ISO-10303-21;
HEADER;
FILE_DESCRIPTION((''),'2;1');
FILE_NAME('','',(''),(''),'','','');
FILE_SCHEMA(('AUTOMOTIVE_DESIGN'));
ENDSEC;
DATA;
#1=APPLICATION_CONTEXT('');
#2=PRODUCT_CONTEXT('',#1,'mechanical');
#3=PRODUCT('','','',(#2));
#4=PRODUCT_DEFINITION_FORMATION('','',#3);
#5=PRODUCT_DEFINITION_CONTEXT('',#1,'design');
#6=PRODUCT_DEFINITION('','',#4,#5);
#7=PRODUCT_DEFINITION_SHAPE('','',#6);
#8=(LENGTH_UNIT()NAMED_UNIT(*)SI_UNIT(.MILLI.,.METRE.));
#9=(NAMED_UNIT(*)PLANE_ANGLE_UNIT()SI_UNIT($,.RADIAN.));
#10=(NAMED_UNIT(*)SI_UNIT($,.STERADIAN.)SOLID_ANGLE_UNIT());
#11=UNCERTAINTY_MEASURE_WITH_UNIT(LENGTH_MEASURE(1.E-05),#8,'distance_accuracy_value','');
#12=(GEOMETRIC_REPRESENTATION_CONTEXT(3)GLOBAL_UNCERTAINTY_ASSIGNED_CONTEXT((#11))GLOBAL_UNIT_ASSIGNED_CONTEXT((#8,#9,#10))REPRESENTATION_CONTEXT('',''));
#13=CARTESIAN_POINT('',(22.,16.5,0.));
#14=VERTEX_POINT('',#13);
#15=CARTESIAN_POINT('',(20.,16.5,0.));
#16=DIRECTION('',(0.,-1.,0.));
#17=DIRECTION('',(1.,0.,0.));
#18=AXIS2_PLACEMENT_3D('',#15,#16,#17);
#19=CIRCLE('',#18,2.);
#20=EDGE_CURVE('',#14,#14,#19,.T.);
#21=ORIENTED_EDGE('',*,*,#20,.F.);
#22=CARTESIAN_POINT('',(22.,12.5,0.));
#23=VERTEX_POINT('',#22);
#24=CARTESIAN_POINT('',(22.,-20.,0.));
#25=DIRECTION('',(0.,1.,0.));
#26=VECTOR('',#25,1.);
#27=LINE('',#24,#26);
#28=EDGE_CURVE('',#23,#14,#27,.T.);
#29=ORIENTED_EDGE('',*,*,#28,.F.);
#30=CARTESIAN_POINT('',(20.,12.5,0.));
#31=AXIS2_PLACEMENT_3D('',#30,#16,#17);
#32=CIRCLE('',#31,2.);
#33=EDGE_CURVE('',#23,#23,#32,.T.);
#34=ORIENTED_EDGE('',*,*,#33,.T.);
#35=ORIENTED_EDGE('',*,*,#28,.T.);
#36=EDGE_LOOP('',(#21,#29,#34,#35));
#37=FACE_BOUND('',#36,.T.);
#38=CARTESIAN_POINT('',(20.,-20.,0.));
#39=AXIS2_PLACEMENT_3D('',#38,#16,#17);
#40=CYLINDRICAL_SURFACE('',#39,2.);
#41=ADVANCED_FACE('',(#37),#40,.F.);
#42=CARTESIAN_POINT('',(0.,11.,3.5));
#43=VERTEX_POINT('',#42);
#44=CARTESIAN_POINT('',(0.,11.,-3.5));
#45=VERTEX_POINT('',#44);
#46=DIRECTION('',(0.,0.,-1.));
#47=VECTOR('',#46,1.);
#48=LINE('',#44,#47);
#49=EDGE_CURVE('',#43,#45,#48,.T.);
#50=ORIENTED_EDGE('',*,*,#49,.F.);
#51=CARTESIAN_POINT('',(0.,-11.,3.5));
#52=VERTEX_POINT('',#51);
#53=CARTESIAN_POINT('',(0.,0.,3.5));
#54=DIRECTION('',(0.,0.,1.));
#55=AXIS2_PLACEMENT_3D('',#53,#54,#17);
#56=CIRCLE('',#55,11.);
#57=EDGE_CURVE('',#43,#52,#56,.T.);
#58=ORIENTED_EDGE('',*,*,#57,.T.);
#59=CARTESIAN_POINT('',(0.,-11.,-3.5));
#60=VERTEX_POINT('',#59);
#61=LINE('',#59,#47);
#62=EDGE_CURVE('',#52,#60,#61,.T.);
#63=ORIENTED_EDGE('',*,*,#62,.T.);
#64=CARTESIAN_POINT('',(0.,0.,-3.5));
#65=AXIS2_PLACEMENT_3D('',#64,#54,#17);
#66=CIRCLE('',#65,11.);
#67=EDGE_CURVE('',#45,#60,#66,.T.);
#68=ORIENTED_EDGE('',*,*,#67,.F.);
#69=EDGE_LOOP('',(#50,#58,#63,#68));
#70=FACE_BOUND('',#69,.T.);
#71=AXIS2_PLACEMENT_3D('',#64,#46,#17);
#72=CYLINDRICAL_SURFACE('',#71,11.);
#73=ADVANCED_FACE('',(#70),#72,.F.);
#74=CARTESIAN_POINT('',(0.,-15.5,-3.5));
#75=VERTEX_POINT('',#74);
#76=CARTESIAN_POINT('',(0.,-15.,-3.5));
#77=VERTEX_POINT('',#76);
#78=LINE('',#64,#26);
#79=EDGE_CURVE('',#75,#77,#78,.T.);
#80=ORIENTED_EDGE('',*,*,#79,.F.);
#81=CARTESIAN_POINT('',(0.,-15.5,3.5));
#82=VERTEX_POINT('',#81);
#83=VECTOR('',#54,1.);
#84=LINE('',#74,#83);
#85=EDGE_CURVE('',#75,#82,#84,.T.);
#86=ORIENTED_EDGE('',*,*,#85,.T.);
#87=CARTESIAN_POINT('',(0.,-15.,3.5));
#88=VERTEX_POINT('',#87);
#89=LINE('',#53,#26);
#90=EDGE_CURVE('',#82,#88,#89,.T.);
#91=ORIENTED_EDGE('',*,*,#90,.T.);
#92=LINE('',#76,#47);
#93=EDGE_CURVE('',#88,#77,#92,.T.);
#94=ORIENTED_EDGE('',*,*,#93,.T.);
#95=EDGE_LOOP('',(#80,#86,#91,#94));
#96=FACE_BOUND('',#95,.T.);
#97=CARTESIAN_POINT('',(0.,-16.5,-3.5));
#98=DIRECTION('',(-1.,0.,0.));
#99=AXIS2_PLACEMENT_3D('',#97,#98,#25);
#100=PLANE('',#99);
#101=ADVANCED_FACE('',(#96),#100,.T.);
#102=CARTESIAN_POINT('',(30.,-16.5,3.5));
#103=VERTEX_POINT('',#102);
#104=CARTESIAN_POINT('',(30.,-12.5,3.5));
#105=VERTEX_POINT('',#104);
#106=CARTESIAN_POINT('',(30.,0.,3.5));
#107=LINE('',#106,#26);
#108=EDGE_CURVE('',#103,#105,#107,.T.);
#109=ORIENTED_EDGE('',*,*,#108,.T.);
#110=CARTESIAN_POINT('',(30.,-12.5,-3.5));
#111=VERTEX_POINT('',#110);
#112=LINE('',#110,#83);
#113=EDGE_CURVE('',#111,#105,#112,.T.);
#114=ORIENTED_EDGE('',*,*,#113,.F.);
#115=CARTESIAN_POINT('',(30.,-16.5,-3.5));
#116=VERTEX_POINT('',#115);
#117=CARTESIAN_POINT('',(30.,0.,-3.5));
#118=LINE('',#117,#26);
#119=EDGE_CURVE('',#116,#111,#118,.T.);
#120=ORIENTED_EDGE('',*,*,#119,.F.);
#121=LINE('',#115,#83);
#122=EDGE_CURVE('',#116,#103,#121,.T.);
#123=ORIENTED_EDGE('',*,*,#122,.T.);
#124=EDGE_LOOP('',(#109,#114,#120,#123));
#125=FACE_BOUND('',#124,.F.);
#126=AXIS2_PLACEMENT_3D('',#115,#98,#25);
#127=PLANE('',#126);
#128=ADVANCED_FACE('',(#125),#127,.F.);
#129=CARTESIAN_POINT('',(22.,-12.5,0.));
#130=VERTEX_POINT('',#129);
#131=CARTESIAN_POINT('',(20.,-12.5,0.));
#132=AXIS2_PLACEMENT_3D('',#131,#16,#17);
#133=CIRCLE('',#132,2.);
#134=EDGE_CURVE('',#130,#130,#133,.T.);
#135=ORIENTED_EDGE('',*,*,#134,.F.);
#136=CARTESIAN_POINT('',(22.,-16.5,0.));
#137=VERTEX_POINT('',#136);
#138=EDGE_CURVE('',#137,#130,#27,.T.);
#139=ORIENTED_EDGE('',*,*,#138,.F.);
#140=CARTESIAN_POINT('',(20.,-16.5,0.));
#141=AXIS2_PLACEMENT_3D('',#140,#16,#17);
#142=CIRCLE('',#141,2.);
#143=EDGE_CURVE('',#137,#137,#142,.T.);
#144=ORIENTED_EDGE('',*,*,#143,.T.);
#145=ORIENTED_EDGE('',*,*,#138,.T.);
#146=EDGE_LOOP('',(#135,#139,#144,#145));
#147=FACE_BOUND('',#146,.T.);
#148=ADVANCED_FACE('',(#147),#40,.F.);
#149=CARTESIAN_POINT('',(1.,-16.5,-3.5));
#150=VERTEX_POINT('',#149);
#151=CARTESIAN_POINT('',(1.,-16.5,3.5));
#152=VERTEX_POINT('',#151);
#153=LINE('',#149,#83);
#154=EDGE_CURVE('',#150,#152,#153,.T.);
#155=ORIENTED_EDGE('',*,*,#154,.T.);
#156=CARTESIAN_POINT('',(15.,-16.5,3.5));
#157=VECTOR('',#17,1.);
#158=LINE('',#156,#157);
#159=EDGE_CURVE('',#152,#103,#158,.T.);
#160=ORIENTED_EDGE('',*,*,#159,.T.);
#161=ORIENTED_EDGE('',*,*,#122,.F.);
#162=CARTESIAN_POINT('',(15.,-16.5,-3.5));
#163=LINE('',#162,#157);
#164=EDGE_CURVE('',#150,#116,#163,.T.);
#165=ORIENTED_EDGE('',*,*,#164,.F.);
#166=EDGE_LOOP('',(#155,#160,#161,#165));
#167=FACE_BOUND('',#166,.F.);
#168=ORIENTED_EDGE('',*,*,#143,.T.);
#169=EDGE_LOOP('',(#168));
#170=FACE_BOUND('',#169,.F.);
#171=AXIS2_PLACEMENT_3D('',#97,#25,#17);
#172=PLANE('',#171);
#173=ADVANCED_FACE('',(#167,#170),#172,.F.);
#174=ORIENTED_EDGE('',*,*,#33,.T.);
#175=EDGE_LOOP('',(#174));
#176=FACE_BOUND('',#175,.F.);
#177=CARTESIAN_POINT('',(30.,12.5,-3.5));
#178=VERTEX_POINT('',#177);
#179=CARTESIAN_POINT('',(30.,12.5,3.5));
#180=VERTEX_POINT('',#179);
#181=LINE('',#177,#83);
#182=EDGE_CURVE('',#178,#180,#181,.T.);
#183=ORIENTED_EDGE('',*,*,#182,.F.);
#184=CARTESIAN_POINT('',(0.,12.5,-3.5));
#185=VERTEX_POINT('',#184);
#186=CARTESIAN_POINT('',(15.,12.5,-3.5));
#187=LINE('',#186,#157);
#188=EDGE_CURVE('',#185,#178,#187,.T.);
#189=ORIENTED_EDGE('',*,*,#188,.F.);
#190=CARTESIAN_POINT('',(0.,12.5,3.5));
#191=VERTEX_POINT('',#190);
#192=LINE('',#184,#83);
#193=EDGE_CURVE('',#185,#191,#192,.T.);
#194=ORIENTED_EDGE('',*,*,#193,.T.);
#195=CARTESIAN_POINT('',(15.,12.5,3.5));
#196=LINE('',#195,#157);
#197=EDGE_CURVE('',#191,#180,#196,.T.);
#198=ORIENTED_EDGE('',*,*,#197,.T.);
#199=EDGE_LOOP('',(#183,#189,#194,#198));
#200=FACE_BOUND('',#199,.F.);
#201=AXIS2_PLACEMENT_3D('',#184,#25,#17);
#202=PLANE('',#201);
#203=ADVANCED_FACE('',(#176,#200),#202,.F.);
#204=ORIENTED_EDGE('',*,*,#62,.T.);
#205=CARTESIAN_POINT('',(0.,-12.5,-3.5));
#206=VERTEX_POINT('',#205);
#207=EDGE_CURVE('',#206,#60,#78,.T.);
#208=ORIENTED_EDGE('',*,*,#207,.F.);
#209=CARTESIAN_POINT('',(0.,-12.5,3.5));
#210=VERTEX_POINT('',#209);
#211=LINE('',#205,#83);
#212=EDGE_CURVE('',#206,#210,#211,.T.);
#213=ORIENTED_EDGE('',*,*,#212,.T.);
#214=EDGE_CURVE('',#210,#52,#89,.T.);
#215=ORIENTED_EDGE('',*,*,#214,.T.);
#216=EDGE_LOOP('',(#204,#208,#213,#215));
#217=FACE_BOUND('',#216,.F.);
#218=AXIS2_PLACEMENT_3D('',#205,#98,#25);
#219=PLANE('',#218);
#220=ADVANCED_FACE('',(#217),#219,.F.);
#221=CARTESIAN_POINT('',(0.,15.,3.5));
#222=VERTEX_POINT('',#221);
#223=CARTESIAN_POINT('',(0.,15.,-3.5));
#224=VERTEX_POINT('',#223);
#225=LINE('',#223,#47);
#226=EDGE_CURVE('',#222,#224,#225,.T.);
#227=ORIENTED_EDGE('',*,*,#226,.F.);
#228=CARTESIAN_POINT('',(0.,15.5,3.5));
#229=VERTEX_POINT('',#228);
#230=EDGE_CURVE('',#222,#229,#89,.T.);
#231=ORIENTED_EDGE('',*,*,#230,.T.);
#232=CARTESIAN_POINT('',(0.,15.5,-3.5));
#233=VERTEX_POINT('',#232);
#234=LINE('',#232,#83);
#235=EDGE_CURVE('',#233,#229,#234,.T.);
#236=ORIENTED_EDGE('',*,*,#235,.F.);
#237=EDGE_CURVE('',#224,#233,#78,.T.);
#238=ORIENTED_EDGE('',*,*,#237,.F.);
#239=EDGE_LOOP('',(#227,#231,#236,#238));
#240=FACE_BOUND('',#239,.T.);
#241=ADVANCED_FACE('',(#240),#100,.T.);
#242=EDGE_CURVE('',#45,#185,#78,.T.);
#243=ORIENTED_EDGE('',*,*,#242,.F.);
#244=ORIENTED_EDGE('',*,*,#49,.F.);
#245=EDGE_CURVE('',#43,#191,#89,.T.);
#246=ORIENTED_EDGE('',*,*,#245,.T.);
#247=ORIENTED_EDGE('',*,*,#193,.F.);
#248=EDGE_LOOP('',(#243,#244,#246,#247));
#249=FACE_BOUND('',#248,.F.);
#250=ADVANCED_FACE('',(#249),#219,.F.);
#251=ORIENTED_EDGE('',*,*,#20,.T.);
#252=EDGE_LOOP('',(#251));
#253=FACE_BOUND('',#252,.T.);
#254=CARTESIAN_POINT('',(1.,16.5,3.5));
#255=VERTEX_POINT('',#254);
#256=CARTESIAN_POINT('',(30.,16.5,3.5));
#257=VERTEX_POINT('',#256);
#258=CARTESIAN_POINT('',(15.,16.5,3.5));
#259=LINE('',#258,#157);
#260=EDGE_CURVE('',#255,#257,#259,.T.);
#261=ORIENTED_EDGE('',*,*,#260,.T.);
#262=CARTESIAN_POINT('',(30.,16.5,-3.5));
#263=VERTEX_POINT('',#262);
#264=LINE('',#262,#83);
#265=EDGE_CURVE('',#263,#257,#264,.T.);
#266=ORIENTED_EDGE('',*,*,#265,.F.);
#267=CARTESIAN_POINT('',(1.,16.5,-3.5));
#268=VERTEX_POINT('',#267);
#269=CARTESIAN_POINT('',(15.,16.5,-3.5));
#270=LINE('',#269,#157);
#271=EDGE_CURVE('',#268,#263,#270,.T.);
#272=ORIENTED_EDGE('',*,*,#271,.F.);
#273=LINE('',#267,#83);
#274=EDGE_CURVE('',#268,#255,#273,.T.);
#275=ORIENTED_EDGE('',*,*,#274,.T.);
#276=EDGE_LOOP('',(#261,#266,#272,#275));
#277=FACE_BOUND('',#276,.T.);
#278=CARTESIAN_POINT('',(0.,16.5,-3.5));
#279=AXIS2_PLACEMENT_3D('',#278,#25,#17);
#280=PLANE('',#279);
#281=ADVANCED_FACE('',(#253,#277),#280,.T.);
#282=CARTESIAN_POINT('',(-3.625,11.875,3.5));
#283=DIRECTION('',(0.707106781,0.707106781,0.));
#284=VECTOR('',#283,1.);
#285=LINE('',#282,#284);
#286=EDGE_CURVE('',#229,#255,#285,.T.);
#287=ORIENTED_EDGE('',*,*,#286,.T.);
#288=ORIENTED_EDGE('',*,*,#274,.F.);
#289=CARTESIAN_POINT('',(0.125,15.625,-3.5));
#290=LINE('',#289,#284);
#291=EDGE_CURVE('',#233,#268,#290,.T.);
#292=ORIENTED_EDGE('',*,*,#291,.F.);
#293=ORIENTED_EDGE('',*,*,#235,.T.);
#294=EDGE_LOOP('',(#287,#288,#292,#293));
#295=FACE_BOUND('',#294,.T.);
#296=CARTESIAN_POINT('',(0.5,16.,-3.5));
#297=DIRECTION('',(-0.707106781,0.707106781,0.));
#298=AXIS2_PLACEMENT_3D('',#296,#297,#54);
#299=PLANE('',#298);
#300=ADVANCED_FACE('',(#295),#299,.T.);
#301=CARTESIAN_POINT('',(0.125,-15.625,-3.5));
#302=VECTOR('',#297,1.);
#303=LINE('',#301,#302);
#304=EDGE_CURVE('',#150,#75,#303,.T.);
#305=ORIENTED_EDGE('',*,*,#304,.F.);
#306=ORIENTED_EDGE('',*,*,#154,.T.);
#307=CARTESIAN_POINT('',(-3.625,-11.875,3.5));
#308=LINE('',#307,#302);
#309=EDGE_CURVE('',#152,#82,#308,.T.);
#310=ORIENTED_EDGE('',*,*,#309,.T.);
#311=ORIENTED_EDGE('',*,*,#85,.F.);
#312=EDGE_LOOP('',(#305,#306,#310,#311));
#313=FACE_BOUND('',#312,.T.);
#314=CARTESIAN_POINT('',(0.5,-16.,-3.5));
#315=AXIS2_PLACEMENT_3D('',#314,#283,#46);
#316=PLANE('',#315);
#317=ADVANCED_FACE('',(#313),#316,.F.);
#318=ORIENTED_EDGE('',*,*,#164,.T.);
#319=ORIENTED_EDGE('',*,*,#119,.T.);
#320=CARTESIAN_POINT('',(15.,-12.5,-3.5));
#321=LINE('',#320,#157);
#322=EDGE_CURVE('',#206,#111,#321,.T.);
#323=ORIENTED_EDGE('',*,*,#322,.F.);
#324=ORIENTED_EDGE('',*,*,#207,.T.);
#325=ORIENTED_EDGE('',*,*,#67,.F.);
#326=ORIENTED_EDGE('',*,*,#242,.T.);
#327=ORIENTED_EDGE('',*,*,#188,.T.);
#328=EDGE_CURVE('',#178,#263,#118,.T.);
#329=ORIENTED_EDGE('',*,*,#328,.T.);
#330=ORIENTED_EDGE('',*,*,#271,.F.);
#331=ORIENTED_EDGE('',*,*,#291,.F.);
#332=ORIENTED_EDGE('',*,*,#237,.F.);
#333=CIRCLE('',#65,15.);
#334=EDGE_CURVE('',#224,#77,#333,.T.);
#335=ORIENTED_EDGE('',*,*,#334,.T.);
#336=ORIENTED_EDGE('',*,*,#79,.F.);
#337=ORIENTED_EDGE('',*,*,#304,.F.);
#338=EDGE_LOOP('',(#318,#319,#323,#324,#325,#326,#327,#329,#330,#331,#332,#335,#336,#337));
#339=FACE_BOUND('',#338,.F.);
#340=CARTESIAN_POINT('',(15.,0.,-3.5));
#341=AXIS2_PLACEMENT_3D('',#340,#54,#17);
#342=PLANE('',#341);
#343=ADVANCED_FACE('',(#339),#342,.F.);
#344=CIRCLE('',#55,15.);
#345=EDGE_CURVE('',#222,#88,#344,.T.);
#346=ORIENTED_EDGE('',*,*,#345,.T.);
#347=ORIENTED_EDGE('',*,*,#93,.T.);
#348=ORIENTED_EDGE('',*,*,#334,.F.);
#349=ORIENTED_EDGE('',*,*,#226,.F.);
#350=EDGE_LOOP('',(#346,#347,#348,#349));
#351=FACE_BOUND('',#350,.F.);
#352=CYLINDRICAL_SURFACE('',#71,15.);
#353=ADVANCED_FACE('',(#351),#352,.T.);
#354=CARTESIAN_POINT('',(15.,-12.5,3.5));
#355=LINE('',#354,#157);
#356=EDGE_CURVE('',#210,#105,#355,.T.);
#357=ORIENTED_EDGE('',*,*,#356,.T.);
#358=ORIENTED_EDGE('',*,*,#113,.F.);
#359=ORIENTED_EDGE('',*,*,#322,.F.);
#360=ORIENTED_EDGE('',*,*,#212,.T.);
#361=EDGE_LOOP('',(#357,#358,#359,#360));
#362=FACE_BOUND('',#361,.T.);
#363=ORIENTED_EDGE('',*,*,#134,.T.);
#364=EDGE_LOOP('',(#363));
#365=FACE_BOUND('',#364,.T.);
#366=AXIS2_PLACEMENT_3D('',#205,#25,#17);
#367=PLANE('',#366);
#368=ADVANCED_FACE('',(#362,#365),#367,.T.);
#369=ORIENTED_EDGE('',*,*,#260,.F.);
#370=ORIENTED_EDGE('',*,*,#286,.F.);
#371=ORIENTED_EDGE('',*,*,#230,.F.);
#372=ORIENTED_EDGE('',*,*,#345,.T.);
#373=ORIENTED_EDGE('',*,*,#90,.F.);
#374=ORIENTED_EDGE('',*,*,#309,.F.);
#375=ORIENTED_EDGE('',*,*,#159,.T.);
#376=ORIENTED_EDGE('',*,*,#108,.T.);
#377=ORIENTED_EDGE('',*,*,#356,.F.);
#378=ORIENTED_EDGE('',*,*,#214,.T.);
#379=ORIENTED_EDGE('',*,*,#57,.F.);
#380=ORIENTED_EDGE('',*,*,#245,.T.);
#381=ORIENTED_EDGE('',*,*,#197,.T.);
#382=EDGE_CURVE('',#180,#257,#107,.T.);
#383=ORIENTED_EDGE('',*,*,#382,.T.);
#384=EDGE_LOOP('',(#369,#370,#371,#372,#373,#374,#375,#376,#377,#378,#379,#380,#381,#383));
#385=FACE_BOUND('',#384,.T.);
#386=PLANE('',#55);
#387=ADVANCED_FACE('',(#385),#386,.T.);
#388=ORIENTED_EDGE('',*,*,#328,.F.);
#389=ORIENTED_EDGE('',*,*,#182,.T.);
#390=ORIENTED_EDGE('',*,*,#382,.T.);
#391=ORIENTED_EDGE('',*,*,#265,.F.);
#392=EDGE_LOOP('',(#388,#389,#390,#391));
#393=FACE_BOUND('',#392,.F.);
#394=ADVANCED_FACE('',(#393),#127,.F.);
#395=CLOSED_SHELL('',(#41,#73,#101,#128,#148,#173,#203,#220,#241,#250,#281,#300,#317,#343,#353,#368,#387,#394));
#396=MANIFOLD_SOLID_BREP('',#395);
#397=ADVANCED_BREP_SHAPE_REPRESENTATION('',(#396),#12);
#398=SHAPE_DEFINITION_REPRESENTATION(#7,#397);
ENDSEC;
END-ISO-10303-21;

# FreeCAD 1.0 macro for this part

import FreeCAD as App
import Part
import Sketcher
from FreeCAD import Vector


def edges_at(feature, points):
    """Names of the edges that pass closest to the given points."""
    edges = feature.Shape.Edges
    near = lambda p: min(range(len(edges)), key=lambda i: edges[i].distToShape(Part.Vertex(*p))[0])
    return sorted({f"Edge{near(p) + 1}" for p in points})


def add_polygon(sketch, points):
    """Adds a closed chain of lines whose ends are joined by coincident constraints."""
    first, n = sketch.GeometryCount, len(points)
    for a, b in zip(points, points[1:] + points[:1]):
        sketch.addGeometry(Part.LineSegment(App.Vector(*a, 0), App.Vector(*b, 0)), False)
    for i in range(n):
        sketch.addConstraint(Sketcher.Constraint("Coincident", first + i, 2, first + (i + 1) % n, 1))

doc = App.newDocument("Part")
body = doc.addObject("PartDesign::Body", "Body")

sketch1 = body.newObject("Sketcher::SketchObject", "Sketch")
sketch1.AttachmentSupport = (doc.getObject("XY_Plane"), [""])
sketch1.MapMode = "FlatFace"
sketch1.AttachmentOffset = App.Placement(Vector(0, 0, -3.5), App.Rotation())
add_polygon(sketch1, [(0, 12), (0, -12), (30, -12), (30, 12)])
sketch1.addConstraint(Sketcher.Constraint("Vertical", 0))
sketch1.addConstraint(Sketcher.Constraint("Horizontal", 1))
sketch1.addConstraint(Sketcher.Constraint("Vertical", 2))
sketch1.addConstraint(Sketcher.Constraint("Horizontal", 3))
sketch1.addConstraint(Sketcher.Constraint("Symmetric", 0, 2, 3, 2, -1, 1))
sketch1.addConstraint(Sketcher.Constraint("DistanceX", 1, 1, 1, 2, 30.0))
sketch1.addConstraint(Sketcher.Constraint("DistanceY", 0, 2, 0, 1, 25.0))
pad1 = body.newObject("PartDesign::Pad", "Pad")
pad1.Profile = sketch1
pad1.Length = 7
body2 = doc.addObject("PartDesign::Body", "Body001")

sketch2 = body2.newObject("Sketcher::SketchObject", "Sketch001")
sketch2.AttachmentSupport = (doc.getObject("XY_Plane001"), [""])
sketch2.MapMode = "FlatFace"
sketch2.addGeometry(Part.Circle(Vector(0, 0, 0), Vector(0, 0, 1), 2), False)
sketch2.addConstraint(Sketcher.Constraint("Coincident", 0, 3, -1, 1))
sketch2.addConstraint(Sketcher.Constraint("Diameter", 0, 4.0))
pad2 = body2.newObject("PartDesign::Pad", "Pad001")
pad2.Profile = sketch2
pad2.Length = 40
body3 = doc.addObject("PartDesign::Body", "Body002")
doc.recompute()

body2.Placement = App.Placement(Vector(0, 0, 0), App.Rotation(Vector(1, 0, 0), 270))
boolean = body3.newObject("PartDesign::Boolean", "Boolean")
boolean.Type = "Fuse"
boolean.addObjects([body2])
body4 = doc.addObject("PartDesign::Body", "Body003")
doc.recompute()

body3.Placement = App.Placement(Vector(20, -20, 0), App.Rotation(Vector(0, 0, 1), 0))
boolean2 = body4.newObject("PartDesign::Boolean", "Boolean001")
boolean2.Type = "Fuse"
boolean2.addObjects([body3])
body5 = doc.addObject("PartDesign::Body", "Body004")

sketch3 = body5.newObject("Sketcher::SketchObject", "Sketch002")
sketch3.AttachmentSupport = (doc.getObject("XY_Plane004"), [""])
sketch3.MapMode = "FlatFace"
sketch3.AttachmentOffset = App.Placement(Vector(0, 0, -3.5), App.Rotation())
sketch3.addGeometry(Part.Circle(Vector(0, 0, 0), Vector(0, 0, 1), 11), False)
sketch3.addConstraint(Sketcher.Constraint("Coincident", 0, 3, -1, 1))
sketch3.addConstraint(Sketcher.Constraint("Diameter", 0, 22.0))
pad3 = body5.newObject("PartDesign::Pad", "Pad002")
pad3.Profile = sketch3
pad3.Length = 7
doc.recompute()

boolean3 = body5.newObject("PartDesign::Boolean", "Boolean002")
boolean3.Type = "Fuse"
boolean3.addObjects([body])
doc.recompute()

boolean4 = body5.newObject("PartDesign::Boolean", "Boolean003")
boolean4.Type = "Fuse"
boolean4.addObjects([body4])
body6 = doc.addObject("PartDesign::Body", "Body005")

sketch4 = body6.newObject("Sketcher::SketchObject", "Sketch003")
sketch4.AttachmentSupport = (doc.getObject("XY_Plane005"), [""])
sketch4.MapMode = "FlatFace"
sketch4.AttachmentOffset = App.Placement(Vector(0, 0, -3.5), App.Rotation())
sketch4.addGeometry(Part.Circle(Vector(0, 0, 0), Vector(0, 0, 1), 15), False)
sketch4.addConstraint(Sketcher.Constraint("Coincident", 0, 3, -1, 1))
sketch4.addConstraint(Sketcher.Constraint("Diameter", 0, 30.0))
pad4 = body6.newObject("PartDesign::Pad", "Pad003")
pad4.Profile = sketch4
pad4.Length = 7
body7 = doc.addObject("PartDesign::Body", "Body006")

sketch5 = body7.newObject("Sketcher::SketchObject", "Sketch004")
sketch5.AttachmentSupport = (doc.getObject("XY_Plane006"), [""])
sketch5.MapMode = "FlatFace"
sketch5.AttachmentOffset = App.Placement(Vector(0, 0, -3.5), App.Rotation())
add_polygon(sketch5, [(0, 16), (0, -16), (30, -16), (30, 16)])
sketch5.addConstraint(Sketcher.Constraint("Vertical", 0))
sketch5.addConstraint(Sketcher.Constraint("Horizontal", 1))
sketch5.addConstraint(Sketcher.Constraint("Vertical", 2))
sketch5.addConstraint(Sketcher.Constraint("Horizontal", 3))
sketch5.addConstraint(Sketcher.Constraint("Symmetric", 0, 2, 3, 2, -1, 1))
sketch5.addConstraint(Sketcher.Constraint("DistanceX", 1, 1, 1, 2, 30.0))
sketch5.addConstraint(Sketcher.Constraint("DistanceY", 0, 2, 0, 1, 33.0))
pad5 = body7.newObject("PartDesign::Pad", "Pad004")
pad5.Profile = sketch5
pad5.Length = 7
doc.recompute()

boolean5 = body7.newObject("PartDesign::Boolean", "Boolean004")
boolean5.Type = "Fuse"
boolean5.addObjects([body6])
doc.recompute()

boolean6 = body7.newObject("PartDesign::Boolean", "Boolean005")
boolean6.Type = "Cut"
boolean6.addObjects([body5])
doc.recompute()

chamfer = body7.newObject("PartDesign::Chamfer", "Chamfer")
chamfer.Base = (boolean6, edges_at(boolean6, [(0, -16.5, 0), (0, 16.5, 0)]))
chamfer.Size = 1

doc.recompute()
